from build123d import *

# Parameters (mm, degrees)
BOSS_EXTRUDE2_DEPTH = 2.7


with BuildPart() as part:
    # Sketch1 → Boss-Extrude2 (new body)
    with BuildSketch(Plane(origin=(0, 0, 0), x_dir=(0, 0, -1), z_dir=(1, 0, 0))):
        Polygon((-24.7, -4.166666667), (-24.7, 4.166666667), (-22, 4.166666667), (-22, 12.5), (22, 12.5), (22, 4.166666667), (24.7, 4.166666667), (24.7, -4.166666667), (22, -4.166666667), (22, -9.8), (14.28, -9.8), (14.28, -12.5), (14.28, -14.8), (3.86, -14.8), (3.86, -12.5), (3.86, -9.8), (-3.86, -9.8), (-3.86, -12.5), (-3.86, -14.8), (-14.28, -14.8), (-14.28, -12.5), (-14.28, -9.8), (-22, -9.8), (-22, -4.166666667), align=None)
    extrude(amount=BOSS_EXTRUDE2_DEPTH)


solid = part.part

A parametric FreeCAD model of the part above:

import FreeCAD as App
import Part
import Sketcher

V = App.Vector
Q = App.Units.Quantity

doc = App.newDocument("Part")
body = doc.addObject("PartDesign::Body", "Body")

sketch1 = body.newObject("Sketcher::SketchObject", "Sketch")
sketch1.AttachmentSupport = (doc.getObject("YZ_Plane"), [""])
sketch1.MapMode = "FlatFace"
sketch1.addGeometry(Part.LineSegment(V(4.2, 24.7, 0), V(-4.2, 24.7, 0)), False)
sketch1.addGeometry(Part.LineSegment(V(-4.2, 24.7, 0), V(-4.2, 22, 0)), False)
sketch1.addGeometry(Part.LineSegment(V(-4.2, 22, 0), V(-9.8, 22, 0)), False)
sketch1.addGeometry(Part.LineSegment(V(-9.8, 22, 0), V(-9.8, 14.3, 0)), False)
sketch1.addGeometry(Part.LineSegment(V(-9.8, 14.3, 0), V(-14.8, 14.3, 0)), False)
sketch1.addGeometry(Part.LineSegment(V(-14.8, 14.3, 0), V(-14.8, 3.9, 0)), False)
sketch1.addGeometry(Part.LineSegment(V(-14.8, 3.9, 0), V(-9.8, 3.9, 0)), False)
sketch1.addGeometry(Part.LineSegment(V(-9.8, 3.9, 0), V(-9.8, -3.9, 0)), False)
sketch1.addGeometry(Part.LineSegment(V(-9.8, -3.9, 0), V(-14.8, -3.9, 0)), False)
sketch1.addGeometry(Part.LineSegment(V(-14.8, -3.9, 0), V(-14.8, -14.3, 0)), False)
sketch1.addGeometry(Part.LineSegment(V(-14.8, -14.3, 0), V(-9.8, -14.3, 0)), False)
sketch1.addGeometry(Part.LineSegment(V(-9.8, -14.3, 0), V(-9.8, -22, 0)), False)
sketch1.addGeometry(Part.LineSegment(V(-9.8, -22, 0), V(-4.2, -22, 0)), False)
sketch1.addGeometry(Part.LineSegment(V(-4.2, -22, 0), V(-4.2, -24.7, 0)), False)
sketch1.addGeometry(Part.LineSegment(V(-4.2, -24.7, 0), V(4.2, -24.7, 0)), False)
sketch1.addGeometry(Part.LineSegment(V(4.2, -24.7, 0), V(4.2, -22, 0)), False)
sketch1.addGeometry(Part.LineSegment(V(4.2, -22, 0), V(12.5, -22, 0)), False)
sketch1.addGeometry(Part.LineSegment(V(12.5, -22, 0), V(12.5, 22, 0)), False)
sketch1.addGeometry(Part.LineSegment(V(12.5, 22, 0), V(4.2, 22, 0)), False)
sketch1.addGeometry(Part.LineSegment(V(4.2, 22, 0), V(4.2, 24.7, 0)), False)
sketch1.addConstraint(Sketcher.Constraint("Coincident", 0, 2, 1, 1))
sketch1.addConstraint(Sketcher.Constraint("Coincident", 1, 2, 2, 1))
sketch1.addConstraint(Sketcher.Constraint("Coincident", 2, 2, 3, 1))
sketch1.addConstraint(Sketcher.Constraint("Coincident", 3, 2, 4, 1))
sketch1.addConstraint(Sketcher.Constraint("Coincident", 4, 2, 5, 1))
sketch1.addConstraint(Sketcher.Constraint("Coincident", 5, 2, 6, 1))
sketch1.addConstraint(Sketcher.Constraint("Coincident", 6, 2, 7, 1))
sketch1.addConstraint(Sketcher.Constraint("Coincident", 7, 2, 8, 1))
sketch1.addConstraint(Sketcher.Constraint("Coincident", 8, 2, 9, 1))
sketch1.addConstraint(Sketcher.Constraint("Coincident", 9, 2, 10, 1))
sketch1.addConstraint(Sketcher.Constraint("Coincident", 10, 2, 11, 1))
sketch1.addConstraint(Sketcher.Constraint("Coincident", 11, 2, 12, 1))
sketch1.addConstraint(Sketcher.Constraint("Coincident", 12, 2, 13, 1))
sketch1.addConstraint(Sketcher.Constraint("Coincident", 13, 2, 14, 1))
sketch1.addConstraint(Sketcher.Constraint("Coincident", 14, 2, 15, 1))
sketch1.addConstraint(Sketcher.Constraint("Coincident", 15, 2, 16, 1))
sketch1.addConstraint(Sketcher.Constraint("Coincident", 16, 2, 17, 1))
sketch1.addConstraint(Sketcher.Constraint("Coincident", 17, 2, 18, 1))
sketch1.addConstraint(Sketcher.Constraint("Coincident", 18, 2, 19, 1))
sketch1.addConstraint(Sketcher.Constraint("Coincident", 19, 2, 0, 1))
sketch1.addConstraint(Sketcher.Constraint("Horizontal", 0))
sketch1.addConstraint(Sketcher.Constraint("Vertical", 1))
sketch1.addConstraint(Sketcher.Constraint("Horizontal", 2))
sketch1.addConstraint(Sketcher.Constraint("Vertical", 3))
sketch1.addConstraint(Sketcher.Constraint("Horizontal", 4))
sketch1.addConstraint(Sketcher.Constraint("Vertical", 5))
sketch1.addConstraint(Sketcher.Constraint("Horizontal", 6))
sketch1.addConstraint(Sketcher.Constraint("Vertical", 7))
sketch1.addConstraint(Sketcher.Constraint("Horizontal", 8))
sketch1.addConstraint(Sketcher.Constraint("Vertical", 9))
sketch1.addConstraint(Sketcher.Constraint("Horizontal", 10))
sketch1.addConstraint(Sketcher.Constraint("Vertical", 11))
sketch1.addConstraint(Sketcher.Constraint("Horizontal", 12))
sketch1.addConstraint(Sketcher.Constraint("Vertical", 13))
sketch1.addConstraint(Sketcher.Constraint("Horizontal", 14))
sketch1.addConstraint(Sketcher.Constraint("Vertical", 15))
sketch1.addConstraint(Sketcher.Constraint("Horizontal", 16))
sketch1.addConstraint(Sketcher.Constraint("Vertical", 17))
sketch1.addConstraint(Sketcher.Constraint("Horizontal", 18))
sketch1.addConstraint(Sketcher.Constraint("Vertical", 19))
sketch1.addConstraint(Sketcher.Constraint("Symmetric", 0, 2, 14, 2, -1, 1))
sketch1.addConstraint(Sketcher.Constraint("Symmetric", 12, 2, 18, 2, -1, 1))
sketch1.addConstraint(Sketcher.Constraint("Symmetric", 12, 2, 15, 2, -2))
sketch1.addConstraint(Sketcher.Constraint("Symmetric", 5, 2, 8, 2, -1))
sketch1.addConstraint(Sketcher.Constraint("Symmetric", 3, 2, 10, 2, -1))
sketch1.addConstraint(Sketcher.Constraint("Horizontal", 2, 2, 17, 2))
sketch1.addConstraint(Sketcher.Constraint("Vertical", 3, 2, 6, 2))
sketch1.addConstraint(Sketcher.Constraint("Equal", 14, 16))
sketch1.addConstraint(Sketcher.Constraint("Equal", 3, 7))
sketch1.addConstraint(Sketcher.Constraint("DistanceX", 4, 2, 4, 1, Q("5 mm")))
sketch1.addConstraint(Sketcher.Constraint("DistanceY", 17, 1, 17, 2, Q("44 mm")))
sketch1.addConstraint(Sketcher.Constraint("DistanceY", 1, 2, 1, 1, Q("2.7 mm")))
sketch1.addConstraint(Sketcher.Constraint("DistanceY", 3, 2, 3, 1, Q("7.72 mm")))
sketch1.addConstraint(Sketcher.Constraint("DistanceX", 2, 2, -1, 1, Q("9.8 mm")))
sketch1.addConstraint(Sketcher.Constraint("DistanceX", -1, 1, 16, 2, Q("12.5 mm")))
pad1 = body.newObject("PartDesign::Pad", "Pad")
pad1.Profile = sketch1
pad1.Length = 2.7

doc.recompute()
